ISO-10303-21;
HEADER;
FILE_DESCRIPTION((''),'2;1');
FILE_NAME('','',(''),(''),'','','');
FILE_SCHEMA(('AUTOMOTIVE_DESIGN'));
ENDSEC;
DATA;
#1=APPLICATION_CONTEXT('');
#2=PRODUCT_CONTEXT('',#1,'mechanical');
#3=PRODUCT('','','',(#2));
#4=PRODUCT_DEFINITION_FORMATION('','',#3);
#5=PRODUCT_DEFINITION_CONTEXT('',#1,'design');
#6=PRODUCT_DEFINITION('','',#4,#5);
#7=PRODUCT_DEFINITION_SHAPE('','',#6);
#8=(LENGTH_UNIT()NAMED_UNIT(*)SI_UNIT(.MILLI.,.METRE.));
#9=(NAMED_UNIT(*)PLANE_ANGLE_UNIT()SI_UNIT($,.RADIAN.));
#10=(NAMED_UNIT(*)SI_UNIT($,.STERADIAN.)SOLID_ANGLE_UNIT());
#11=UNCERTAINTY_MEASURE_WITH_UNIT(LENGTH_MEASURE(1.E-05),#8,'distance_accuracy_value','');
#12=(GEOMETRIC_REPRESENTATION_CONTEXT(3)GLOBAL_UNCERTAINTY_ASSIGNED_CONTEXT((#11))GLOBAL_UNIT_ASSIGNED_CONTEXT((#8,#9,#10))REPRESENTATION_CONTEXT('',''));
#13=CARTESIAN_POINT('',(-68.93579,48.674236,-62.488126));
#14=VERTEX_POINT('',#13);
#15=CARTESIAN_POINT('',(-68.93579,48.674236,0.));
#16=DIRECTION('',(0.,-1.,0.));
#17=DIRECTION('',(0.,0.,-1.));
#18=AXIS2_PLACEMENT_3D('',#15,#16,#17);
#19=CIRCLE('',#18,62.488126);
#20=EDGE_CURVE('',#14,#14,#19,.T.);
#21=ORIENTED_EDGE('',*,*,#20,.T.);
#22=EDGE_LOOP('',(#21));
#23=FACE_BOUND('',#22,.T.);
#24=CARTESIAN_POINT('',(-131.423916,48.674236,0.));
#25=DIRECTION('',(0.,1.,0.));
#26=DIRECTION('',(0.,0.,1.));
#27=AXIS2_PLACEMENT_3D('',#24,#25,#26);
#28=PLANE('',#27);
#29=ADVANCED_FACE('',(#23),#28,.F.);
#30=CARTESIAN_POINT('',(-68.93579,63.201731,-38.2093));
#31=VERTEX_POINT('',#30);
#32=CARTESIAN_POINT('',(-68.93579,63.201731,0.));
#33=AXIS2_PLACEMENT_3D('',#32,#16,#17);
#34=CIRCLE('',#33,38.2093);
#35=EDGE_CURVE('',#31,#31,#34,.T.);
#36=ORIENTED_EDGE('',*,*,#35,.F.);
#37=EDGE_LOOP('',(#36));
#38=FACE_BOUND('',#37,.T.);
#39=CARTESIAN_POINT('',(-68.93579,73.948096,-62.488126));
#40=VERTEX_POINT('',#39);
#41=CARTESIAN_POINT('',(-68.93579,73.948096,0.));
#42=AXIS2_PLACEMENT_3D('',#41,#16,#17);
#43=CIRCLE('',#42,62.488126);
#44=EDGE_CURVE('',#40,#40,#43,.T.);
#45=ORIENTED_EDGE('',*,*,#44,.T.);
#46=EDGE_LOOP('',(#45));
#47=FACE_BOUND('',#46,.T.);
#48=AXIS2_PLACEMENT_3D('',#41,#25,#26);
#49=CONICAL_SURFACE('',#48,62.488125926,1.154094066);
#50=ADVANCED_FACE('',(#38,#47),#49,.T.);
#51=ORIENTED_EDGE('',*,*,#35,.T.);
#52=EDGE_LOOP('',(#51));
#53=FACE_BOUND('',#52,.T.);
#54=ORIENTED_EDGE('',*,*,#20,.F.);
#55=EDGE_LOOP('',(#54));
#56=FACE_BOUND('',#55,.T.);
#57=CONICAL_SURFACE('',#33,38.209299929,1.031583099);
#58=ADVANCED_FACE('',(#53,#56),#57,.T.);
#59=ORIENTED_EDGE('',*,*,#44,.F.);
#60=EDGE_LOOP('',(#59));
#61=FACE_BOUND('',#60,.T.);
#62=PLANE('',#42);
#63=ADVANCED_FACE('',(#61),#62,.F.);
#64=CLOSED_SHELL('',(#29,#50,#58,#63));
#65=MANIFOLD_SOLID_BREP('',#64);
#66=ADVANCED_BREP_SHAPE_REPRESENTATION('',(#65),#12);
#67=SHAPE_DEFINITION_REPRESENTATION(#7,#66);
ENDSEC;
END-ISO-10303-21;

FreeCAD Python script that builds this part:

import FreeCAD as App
import Part
import Sketcher

V = App.Vector
Q = App.Units.Quantity

doc = App.newDocument("Part")
body = doc.addObject("PartDesign::Body", "Body")

sketch1 = body.newObject("Sketcher::SketchObject", "Sketch")
sketch1.AttachmentSupport = (doc.getObject("XY_Plane"), [""])
sketch1.MapMode = "FlatFace"
sketch1.addGeometry(Part.LineSegment(V(-131, 49, 0), V(-69, 49, 0)), False)
sketch1.addGeometry(Part.LineSegment(V(-69, 49, 0), V(-69, 74, 0)), False)
sketch1.addGeometry(Part.LineSegment(V(-69, 74, 0), V(-131, 74, 0)), False)
sketch1.addGeometry(Part.LineSegment(V(-131, 74, 0), V(-107, 63, 0)), False)
sketch1.addGeometry(Part.LineSegment(V(-107, 63, 0), V(-131, 49, 0)), False)
sketch1.addGeometry(Part.LineSegment(V(-69, 49, 0), V(-69, 74, 0)), True)
sketch1.addConstraint(Sketcher.Constraint("Coincident", 0, 2, 1, 1))
sketch1.addConstraint(Sketcher.Constraint("Coincident", 1, 2, 2, 1))
sketch1.addConstraint(Sketcher.Constraint("Coincident", 2, 2, 3, 1))
sketch1.addConstraint(Sketcher.Constraint("Coincident", 3, 2, 4, 1))
sketch1.addConstraint(Sketcher.Constraint("Coincident", 4, 2, 0, 1))
sketch1.addConstraint(Sketcher.Constraint("Horizontal", 0))
sketch1.addConstraint(Sketcher.Constraint("Vertical", 1))
sketch1.addConstraint(Sketcher.Constraint("Horizontal", 2))
sketch1.addConstraint(Sketcher.Constraint("Vertical", 5))
sketch1.addConstraint(Sketcher.Constraint("Coincident", 5, 1, 0, 2))
sketch1.addConstraint(Sketcher.Constraint("Horizontal", 2, 2, 5, 2))
sketch1.addConstraint(Sketcher.Constraint("Vertical", 2, 2, 4, 2))
sketch1.addConstraint(Sketcher.Constraint("DistanceY", 1, 1, 1, 2, Q("25.27386 mm")))
sketch1.addConstraint(Sketcher.Constraint("DistanceX", 3, 2, 1, 2, Q("38.2093 mm")))
sketch1.addConstraint(Sketcher.Constraint("DistanceX", 0, 1, 0, 2, Q("62.488126 mm")))
sketch1.addConstraint(Sketcher.Constraint("DistanceX", 0, 2, -1, 1, Q("68.93579 mm")))
sketch1.addConstraint(Sketcher.Constraint("DistanceY", -1, 1, 3, 2, Q("63.201731 mm")))
sketch1.addConstraint(Sketcher.Constraint("Distance", 3, Q("26.550815 mm")))
revolution = body.newObject("PartDesign::Revolution", "Revolution")
revolution.Profile = sketch1
revolution.ReferenceAxis = (sketch1, ["Axis0"])
revolution.Angle = 360

doc.recompute()
